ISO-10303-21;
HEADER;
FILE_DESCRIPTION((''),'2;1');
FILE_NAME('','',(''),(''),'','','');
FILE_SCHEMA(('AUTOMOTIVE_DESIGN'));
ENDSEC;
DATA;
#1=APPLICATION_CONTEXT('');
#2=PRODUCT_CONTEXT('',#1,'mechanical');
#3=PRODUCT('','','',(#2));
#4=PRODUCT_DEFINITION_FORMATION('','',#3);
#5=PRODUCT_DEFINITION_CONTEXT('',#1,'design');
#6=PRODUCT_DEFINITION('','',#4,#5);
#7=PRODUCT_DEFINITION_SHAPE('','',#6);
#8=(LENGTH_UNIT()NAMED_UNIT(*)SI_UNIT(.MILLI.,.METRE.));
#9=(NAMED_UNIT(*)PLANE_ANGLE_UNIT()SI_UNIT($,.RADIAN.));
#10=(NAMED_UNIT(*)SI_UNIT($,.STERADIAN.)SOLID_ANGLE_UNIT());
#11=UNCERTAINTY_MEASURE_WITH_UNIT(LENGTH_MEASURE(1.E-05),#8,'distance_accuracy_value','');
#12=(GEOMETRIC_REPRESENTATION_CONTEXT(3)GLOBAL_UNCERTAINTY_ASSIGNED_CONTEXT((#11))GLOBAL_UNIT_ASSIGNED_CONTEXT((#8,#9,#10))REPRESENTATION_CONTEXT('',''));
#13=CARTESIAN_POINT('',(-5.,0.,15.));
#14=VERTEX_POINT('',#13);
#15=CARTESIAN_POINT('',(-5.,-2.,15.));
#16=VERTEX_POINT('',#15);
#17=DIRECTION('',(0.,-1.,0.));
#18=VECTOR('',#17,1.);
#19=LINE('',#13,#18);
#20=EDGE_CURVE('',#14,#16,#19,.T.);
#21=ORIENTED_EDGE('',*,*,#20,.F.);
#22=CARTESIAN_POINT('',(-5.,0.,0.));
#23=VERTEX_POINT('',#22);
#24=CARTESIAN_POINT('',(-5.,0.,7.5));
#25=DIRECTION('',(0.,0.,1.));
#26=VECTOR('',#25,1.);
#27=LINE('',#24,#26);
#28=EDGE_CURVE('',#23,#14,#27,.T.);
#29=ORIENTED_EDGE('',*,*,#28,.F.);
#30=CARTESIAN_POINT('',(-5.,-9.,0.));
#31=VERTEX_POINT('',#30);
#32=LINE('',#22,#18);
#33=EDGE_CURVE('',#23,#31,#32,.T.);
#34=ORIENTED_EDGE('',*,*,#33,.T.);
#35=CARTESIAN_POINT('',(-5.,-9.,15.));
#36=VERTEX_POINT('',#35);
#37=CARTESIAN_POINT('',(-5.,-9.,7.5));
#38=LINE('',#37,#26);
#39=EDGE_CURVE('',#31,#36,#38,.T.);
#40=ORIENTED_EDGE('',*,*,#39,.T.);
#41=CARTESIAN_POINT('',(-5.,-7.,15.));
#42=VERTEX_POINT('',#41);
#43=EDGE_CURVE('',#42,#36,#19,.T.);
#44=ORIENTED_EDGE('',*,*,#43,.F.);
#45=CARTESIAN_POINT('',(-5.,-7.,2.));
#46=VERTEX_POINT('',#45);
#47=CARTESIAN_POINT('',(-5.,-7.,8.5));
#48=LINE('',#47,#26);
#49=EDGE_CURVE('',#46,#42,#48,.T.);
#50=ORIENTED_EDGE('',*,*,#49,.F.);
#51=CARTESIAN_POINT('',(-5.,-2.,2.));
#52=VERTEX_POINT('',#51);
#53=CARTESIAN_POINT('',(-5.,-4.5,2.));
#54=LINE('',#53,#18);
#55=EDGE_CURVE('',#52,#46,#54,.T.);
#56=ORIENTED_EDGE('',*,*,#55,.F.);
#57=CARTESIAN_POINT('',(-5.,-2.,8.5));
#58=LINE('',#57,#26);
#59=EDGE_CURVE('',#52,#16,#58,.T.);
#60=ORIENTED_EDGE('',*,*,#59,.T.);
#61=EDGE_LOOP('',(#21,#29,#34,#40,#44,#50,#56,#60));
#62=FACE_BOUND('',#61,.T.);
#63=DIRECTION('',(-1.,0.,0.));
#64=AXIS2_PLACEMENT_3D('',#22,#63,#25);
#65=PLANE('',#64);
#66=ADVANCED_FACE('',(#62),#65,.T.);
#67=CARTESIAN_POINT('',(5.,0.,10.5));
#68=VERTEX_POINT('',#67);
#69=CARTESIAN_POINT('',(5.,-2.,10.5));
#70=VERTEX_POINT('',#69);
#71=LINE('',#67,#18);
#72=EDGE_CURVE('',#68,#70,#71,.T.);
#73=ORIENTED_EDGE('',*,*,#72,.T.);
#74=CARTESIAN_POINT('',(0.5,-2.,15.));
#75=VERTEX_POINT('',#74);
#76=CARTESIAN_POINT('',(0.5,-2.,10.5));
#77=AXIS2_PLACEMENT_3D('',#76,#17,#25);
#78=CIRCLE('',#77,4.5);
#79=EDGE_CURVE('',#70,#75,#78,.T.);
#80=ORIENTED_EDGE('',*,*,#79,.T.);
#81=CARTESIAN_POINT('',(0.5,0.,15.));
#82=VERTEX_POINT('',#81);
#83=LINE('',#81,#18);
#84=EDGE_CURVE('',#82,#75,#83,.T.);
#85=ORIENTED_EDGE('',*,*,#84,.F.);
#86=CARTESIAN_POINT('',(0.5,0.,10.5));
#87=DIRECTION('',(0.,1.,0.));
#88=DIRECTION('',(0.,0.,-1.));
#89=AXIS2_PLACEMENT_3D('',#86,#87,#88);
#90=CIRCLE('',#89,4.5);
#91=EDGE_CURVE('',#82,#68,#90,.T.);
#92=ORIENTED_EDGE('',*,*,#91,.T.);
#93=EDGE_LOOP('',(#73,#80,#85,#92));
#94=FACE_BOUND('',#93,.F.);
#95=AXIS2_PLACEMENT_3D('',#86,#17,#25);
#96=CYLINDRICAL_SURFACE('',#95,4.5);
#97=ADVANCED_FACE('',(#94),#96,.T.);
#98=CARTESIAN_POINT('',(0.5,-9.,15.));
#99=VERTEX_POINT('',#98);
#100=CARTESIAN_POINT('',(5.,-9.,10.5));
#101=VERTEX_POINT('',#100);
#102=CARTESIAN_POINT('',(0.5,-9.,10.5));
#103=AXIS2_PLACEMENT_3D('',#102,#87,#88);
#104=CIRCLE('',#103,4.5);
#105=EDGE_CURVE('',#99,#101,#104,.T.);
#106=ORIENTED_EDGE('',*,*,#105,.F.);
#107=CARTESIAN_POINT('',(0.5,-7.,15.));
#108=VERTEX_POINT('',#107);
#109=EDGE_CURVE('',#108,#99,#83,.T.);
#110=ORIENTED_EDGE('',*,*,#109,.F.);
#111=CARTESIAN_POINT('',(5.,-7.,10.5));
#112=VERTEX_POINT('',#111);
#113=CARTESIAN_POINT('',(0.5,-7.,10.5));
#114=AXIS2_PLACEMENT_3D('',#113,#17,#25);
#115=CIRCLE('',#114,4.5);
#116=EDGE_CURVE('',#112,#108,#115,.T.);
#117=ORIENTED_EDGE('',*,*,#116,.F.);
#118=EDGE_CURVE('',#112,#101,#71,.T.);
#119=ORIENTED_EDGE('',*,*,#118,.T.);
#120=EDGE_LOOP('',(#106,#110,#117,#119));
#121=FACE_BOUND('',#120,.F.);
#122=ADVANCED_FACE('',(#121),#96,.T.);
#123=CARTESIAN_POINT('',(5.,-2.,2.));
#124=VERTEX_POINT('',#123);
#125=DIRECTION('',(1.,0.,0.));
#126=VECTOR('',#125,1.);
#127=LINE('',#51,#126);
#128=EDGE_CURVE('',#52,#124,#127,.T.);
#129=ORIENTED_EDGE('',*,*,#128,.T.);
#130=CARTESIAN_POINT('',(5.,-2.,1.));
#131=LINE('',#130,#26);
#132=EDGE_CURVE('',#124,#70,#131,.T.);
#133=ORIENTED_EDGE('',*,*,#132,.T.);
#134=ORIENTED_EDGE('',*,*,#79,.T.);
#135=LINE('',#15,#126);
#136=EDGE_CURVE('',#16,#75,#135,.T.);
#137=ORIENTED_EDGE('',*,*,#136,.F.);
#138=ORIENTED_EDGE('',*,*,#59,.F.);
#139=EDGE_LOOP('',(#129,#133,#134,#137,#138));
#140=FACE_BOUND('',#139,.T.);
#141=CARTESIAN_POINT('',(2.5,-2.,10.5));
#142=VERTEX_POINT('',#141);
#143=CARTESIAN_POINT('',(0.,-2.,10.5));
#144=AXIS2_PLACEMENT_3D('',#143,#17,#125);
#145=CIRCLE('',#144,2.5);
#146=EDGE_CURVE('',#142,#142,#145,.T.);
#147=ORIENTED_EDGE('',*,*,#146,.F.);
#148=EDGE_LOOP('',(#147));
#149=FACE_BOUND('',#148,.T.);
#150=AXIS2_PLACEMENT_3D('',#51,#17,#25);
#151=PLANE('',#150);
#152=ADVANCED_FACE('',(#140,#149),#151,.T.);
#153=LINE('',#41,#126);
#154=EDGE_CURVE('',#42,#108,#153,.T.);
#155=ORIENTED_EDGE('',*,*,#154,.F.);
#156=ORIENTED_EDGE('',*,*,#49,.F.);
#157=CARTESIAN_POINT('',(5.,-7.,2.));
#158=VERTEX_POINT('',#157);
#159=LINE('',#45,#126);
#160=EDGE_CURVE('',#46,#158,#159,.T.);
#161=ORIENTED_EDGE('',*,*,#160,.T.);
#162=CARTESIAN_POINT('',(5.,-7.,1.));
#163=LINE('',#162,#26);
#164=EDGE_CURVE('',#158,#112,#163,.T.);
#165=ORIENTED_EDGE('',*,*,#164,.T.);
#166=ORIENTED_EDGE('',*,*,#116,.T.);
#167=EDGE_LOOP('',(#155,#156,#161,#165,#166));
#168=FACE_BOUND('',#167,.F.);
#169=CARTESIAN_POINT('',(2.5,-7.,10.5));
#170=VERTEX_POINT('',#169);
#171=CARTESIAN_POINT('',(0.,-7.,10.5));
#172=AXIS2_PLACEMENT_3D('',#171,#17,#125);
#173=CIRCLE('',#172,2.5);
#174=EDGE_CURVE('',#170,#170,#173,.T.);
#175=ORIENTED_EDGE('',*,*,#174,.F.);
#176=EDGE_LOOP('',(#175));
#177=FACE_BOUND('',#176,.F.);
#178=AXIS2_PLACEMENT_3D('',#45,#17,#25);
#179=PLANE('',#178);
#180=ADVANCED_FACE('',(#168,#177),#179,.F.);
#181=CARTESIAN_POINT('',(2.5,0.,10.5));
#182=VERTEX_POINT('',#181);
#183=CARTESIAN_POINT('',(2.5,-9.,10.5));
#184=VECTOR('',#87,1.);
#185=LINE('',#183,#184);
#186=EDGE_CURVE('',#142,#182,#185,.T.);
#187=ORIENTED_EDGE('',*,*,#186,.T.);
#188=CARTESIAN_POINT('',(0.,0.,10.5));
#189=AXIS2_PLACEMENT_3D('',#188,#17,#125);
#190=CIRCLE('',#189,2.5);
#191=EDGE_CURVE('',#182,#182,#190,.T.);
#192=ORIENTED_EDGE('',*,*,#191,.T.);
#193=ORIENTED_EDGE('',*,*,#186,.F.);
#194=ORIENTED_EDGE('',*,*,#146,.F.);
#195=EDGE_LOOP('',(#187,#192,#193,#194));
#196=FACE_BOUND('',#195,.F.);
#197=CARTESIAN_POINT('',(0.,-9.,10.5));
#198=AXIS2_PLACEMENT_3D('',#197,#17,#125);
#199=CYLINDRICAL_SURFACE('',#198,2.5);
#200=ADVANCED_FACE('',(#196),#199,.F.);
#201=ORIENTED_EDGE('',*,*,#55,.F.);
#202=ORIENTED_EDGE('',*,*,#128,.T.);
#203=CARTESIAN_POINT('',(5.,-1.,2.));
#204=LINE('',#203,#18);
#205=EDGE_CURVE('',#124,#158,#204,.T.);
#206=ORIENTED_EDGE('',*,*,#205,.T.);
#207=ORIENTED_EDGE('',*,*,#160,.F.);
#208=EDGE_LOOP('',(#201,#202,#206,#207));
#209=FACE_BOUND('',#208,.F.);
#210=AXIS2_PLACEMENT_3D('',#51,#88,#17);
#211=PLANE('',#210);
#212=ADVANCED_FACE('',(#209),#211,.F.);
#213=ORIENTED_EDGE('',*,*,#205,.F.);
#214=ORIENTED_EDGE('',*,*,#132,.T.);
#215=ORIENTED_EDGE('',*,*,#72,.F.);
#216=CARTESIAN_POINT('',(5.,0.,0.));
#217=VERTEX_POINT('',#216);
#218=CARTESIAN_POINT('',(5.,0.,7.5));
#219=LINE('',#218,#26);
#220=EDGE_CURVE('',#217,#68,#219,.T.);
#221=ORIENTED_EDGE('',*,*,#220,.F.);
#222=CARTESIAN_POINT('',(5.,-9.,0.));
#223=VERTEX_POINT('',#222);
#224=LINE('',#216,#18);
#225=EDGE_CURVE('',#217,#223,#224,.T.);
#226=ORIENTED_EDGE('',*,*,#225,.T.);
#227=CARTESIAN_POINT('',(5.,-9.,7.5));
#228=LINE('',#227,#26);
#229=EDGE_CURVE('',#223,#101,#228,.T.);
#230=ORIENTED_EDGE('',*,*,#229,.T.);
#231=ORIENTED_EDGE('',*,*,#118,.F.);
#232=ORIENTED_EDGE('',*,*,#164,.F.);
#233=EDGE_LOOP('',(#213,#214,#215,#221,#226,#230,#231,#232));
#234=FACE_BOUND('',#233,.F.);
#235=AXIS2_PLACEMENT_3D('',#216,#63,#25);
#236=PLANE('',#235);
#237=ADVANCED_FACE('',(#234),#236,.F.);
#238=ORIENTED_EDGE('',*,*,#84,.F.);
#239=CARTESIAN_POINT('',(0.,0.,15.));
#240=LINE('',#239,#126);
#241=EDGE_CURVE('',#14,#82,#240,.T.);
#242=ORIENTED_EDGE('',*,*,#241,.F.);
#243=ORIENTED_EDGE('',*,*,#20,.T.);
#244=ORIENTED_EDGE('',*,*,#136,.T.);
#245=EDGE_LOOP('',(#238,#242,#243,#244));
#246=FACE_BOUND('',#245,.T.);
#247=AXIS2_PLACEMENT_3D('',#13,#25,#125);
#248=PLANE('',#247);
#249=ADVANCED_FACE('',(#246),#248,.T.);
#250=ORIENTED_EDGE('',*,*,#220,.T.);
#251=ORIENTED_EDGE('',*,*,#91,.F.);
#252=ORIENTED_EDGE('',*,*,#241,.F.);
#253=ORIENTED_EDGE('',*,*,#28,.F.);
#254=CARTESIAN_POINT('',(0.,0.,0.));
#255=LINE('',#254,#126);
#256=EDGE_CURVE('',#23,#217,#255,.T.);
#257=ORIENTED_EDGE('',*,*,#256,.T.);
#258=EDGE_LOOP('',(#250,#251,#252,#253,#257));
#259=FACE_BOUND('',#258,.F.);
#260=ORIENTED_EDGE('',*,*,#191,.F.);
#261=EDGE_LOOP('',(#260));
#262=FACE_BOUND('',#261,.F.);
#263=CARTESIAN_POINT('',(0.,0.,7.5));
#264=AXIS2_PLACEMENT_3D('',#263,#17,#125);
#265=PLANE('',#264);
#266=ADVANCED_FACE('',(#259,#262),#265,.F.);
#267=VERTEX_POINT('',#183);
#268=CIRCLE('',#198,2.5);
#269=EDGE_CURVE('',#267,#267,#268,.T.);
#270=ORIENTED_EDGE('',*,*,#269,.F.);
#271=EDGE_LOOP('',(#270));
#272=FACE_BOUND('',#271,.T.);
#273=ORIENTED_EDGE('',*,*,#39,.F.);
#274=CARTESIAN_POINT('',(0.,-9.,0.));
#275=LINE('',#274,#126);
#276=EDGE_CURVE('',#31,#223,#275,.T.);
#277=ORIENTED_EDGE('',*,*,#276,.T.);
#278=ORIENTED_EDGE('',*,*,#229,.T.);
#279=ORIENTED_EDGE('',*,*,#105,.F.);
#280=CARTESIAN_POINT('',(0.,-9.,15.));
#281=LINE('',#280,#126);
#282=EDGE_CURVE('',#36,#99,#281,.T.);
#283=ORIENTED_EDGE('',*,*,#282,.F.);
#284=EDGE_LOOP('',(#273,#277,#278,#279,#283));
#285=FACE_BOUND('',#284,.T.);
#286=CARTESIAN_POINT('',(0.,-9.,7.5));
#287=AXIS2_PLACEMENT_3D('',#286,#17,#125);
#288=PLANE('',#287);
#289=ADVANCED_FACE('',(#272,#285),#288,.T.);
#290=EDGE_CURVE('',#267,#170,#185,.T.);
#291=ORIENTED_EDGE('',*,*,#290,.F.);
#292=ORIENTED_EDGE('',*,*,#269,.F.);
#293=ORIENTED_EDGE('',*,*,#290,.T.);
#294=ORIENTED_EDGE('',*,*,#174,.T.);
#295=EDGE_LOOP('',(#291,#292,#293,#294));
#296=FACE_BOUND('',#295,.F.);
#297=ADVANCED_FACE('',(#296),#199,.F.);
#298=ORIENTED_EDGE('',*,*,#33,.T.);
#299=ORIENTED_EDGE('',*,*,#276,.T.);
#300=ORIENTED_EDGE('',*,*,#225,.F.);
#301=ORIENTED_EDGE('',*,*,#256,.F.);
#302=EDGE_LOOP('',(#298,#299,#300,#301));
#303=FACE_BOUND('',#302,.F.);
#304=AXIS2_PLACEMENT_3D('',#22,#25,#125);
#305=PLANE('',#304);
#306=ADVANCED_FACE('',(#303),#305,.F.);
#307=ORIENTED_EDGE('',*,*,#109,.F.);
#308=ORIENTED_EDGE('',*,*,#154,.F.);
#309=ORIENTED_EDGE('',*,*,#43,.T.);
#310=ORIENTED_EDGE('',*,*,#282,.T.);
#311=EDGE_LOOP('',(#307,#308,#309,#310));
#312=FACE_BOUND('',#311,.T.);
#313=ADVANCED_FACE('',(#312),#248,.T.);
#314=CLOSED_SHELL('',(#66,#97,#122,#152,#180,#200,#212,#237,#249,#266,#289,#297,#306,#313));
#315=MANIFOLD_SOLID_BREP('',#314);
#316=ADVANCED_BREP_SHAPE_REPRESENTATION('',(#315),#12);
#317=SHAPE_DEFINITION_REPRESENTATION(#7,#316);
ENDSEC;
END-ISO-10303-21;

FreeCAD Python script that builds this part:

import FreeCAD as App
import Part
import Sketcher

V = App.Vector
Q = App.Units.Quantity


def edges_at(feature, points):
    """Names of the edges that pass closest to the given points."""
    edges = feature.Shape.Edges
    near = lambda p: min(range(len(edges)), key=lambda i: edges[i].distToShape(Part.Vertex(*p))[0])
    return sorted({f"Edge{near(p) + 1}" for p in points})


def add_polygon(sketch, points):
    """Adds a closed chain of lines whose ends are joined by coincident constraints."""
    first, n = sketch.GeometryCount, len(points)
    for a, b in zip(points, points[1:] + points[:1]):
        sketch.addGeometry(Part.LineSegment(App.Vector(*a, 0), App.Vector(*b, 0)), False)
    for i in range(n):
        sketch.addConstraint(Sketcher.Constraint("Coincident", first + i, 2, first + (i + 1) % n, 1))

doc = App.newDocument("Part")
body = doc.addObject("PartDesign::Body", "Body")

# Sketch on XZ plane
sketch1 = body.newObject("Sketcher::SketchObject", "Sketch")
sketch1.AttachmentSupport = (doc.getObject("XZ_Plane"), [""])
sketch1.MapMode = "FlatFace"
add_polygon(sketch1, [(-5, 15), (-5, 0), (5, 0), (5, 15)])  # lines 0-3
sketch1.addConstraint(Sketcher.Constraint("Vertical", 0))
sketch1.addConstraint(Sketcher.Constraint("Horizontal", 1))
sketch1.addConstraint(Sketcher.Constraint("Vertical", 2))
sketch1.addConstraint(Sketcher.Constraint("Horizontal", 3))
sketch1.addConstraint(Sketcher.Constraint("Symmetric", 0, 2, 1, 2, -1, 1))
sketch1.addConstraint(Sketcher.Constraint("DistanceX", 1, 1, 1, 2, Q("10 mm")))
sketch1.addConstraint(Sketcher.Constraint("DistanceY", 0, 2, 0, 1, Q("15 mm")))
pad1 = body.newObject("PartDesign::Pad", "Pad")
pad1.Profile = sketch1
pad1.Length = 9

# Sketch on XZ plane
sketch2 = body.newObject("Sketcher::SketchObject", "Sketch001")
sketch2.AttachmentSupport = (doc.getObject("XZ_Plane"), [""])
sketch2.MapMode = "FlatFace"
sketch2.AttachmentOffset = App.Placement(V(0, 0, 9), App.Rotation())
sketch2.addGeometry(Part.Circle(V(0, 10.5, 0), V(0, 0, 1), 2.5), False)
sketch2.addConstraint(Sketcher.Constraint("PointOnObject", 0, 3, -2))
sketch2.addConstraint(Sketcher.Constraint("Diameter", 0, Q("5 mm")))
sketch2.addConstraint(Sketcher.Constraint("DistanceY", -1, 1, 0, 3, Q("10.5 mm")))
pocket1 = body.newObject("PartDesign::Pocket", "Pocket")
pocket1.Profile = sketch2
pocket1.Type = "ThroughAll"
doc.recompute()

fillet = body.newObject("PartDesign::Fillet", "Fillet")
fillet.Base = (pocket1, edges_at(pocket1, [(5, -4.5, 15)]))
fillet.Radius = 4.5

# Sketch on YZ plane
sketch3 = body.newObject("Sketcher::SketchObject", "Sketch002")
sketch3.AttachmentSupport = (doc.getObject("YZ_Plane"), [""])
sketch3.MapMode = "FlatFace"
sketch3.AttachmentOffset = App.Placement(V(0, 0, -5), App.Rotation())
add_polygon(sketch3, [(-2, 15), (-2, 2), (-7, 2), (-7, 15)])  # lines 0-3
sketch3.addConstraint(Sketcher.Constraint("Vertical", 0))
sketch3.addConstraint(Sketcher.Constraint("Horizontal", 1))
sketch3.addConstraint(Sketcher.Constraint("Vertical", 2))
sketch3.addConstraint(Sketcher.Constraint("Horizontal", 3))
sketch3.addConstraint(Sketcher.Constraint("DistanceX", 1, 2, 1, 1, Q("5 mm")))
sketch3.addConstraint(Sketcher.Constraint("DistanceY", 0, 2, 0, 1, Q("13 mm")))
sketch3.addConstraint(Sketcher.Constraint("DistanceX", 0, 2, -1, 1, Q("2 mm")))
sketch3.addConstraint(Sketcher.Constraint("DistanceY", -1, 1, 0, 2, Q("2 mm")))
pocket2 = body.newObject("PartDesign::Pocket", "Pocket001")
pocket2.Profile = sketch3
pocket2.Type = "ThroughAll"
pocket2.Reversed = True

doc.recompute()
